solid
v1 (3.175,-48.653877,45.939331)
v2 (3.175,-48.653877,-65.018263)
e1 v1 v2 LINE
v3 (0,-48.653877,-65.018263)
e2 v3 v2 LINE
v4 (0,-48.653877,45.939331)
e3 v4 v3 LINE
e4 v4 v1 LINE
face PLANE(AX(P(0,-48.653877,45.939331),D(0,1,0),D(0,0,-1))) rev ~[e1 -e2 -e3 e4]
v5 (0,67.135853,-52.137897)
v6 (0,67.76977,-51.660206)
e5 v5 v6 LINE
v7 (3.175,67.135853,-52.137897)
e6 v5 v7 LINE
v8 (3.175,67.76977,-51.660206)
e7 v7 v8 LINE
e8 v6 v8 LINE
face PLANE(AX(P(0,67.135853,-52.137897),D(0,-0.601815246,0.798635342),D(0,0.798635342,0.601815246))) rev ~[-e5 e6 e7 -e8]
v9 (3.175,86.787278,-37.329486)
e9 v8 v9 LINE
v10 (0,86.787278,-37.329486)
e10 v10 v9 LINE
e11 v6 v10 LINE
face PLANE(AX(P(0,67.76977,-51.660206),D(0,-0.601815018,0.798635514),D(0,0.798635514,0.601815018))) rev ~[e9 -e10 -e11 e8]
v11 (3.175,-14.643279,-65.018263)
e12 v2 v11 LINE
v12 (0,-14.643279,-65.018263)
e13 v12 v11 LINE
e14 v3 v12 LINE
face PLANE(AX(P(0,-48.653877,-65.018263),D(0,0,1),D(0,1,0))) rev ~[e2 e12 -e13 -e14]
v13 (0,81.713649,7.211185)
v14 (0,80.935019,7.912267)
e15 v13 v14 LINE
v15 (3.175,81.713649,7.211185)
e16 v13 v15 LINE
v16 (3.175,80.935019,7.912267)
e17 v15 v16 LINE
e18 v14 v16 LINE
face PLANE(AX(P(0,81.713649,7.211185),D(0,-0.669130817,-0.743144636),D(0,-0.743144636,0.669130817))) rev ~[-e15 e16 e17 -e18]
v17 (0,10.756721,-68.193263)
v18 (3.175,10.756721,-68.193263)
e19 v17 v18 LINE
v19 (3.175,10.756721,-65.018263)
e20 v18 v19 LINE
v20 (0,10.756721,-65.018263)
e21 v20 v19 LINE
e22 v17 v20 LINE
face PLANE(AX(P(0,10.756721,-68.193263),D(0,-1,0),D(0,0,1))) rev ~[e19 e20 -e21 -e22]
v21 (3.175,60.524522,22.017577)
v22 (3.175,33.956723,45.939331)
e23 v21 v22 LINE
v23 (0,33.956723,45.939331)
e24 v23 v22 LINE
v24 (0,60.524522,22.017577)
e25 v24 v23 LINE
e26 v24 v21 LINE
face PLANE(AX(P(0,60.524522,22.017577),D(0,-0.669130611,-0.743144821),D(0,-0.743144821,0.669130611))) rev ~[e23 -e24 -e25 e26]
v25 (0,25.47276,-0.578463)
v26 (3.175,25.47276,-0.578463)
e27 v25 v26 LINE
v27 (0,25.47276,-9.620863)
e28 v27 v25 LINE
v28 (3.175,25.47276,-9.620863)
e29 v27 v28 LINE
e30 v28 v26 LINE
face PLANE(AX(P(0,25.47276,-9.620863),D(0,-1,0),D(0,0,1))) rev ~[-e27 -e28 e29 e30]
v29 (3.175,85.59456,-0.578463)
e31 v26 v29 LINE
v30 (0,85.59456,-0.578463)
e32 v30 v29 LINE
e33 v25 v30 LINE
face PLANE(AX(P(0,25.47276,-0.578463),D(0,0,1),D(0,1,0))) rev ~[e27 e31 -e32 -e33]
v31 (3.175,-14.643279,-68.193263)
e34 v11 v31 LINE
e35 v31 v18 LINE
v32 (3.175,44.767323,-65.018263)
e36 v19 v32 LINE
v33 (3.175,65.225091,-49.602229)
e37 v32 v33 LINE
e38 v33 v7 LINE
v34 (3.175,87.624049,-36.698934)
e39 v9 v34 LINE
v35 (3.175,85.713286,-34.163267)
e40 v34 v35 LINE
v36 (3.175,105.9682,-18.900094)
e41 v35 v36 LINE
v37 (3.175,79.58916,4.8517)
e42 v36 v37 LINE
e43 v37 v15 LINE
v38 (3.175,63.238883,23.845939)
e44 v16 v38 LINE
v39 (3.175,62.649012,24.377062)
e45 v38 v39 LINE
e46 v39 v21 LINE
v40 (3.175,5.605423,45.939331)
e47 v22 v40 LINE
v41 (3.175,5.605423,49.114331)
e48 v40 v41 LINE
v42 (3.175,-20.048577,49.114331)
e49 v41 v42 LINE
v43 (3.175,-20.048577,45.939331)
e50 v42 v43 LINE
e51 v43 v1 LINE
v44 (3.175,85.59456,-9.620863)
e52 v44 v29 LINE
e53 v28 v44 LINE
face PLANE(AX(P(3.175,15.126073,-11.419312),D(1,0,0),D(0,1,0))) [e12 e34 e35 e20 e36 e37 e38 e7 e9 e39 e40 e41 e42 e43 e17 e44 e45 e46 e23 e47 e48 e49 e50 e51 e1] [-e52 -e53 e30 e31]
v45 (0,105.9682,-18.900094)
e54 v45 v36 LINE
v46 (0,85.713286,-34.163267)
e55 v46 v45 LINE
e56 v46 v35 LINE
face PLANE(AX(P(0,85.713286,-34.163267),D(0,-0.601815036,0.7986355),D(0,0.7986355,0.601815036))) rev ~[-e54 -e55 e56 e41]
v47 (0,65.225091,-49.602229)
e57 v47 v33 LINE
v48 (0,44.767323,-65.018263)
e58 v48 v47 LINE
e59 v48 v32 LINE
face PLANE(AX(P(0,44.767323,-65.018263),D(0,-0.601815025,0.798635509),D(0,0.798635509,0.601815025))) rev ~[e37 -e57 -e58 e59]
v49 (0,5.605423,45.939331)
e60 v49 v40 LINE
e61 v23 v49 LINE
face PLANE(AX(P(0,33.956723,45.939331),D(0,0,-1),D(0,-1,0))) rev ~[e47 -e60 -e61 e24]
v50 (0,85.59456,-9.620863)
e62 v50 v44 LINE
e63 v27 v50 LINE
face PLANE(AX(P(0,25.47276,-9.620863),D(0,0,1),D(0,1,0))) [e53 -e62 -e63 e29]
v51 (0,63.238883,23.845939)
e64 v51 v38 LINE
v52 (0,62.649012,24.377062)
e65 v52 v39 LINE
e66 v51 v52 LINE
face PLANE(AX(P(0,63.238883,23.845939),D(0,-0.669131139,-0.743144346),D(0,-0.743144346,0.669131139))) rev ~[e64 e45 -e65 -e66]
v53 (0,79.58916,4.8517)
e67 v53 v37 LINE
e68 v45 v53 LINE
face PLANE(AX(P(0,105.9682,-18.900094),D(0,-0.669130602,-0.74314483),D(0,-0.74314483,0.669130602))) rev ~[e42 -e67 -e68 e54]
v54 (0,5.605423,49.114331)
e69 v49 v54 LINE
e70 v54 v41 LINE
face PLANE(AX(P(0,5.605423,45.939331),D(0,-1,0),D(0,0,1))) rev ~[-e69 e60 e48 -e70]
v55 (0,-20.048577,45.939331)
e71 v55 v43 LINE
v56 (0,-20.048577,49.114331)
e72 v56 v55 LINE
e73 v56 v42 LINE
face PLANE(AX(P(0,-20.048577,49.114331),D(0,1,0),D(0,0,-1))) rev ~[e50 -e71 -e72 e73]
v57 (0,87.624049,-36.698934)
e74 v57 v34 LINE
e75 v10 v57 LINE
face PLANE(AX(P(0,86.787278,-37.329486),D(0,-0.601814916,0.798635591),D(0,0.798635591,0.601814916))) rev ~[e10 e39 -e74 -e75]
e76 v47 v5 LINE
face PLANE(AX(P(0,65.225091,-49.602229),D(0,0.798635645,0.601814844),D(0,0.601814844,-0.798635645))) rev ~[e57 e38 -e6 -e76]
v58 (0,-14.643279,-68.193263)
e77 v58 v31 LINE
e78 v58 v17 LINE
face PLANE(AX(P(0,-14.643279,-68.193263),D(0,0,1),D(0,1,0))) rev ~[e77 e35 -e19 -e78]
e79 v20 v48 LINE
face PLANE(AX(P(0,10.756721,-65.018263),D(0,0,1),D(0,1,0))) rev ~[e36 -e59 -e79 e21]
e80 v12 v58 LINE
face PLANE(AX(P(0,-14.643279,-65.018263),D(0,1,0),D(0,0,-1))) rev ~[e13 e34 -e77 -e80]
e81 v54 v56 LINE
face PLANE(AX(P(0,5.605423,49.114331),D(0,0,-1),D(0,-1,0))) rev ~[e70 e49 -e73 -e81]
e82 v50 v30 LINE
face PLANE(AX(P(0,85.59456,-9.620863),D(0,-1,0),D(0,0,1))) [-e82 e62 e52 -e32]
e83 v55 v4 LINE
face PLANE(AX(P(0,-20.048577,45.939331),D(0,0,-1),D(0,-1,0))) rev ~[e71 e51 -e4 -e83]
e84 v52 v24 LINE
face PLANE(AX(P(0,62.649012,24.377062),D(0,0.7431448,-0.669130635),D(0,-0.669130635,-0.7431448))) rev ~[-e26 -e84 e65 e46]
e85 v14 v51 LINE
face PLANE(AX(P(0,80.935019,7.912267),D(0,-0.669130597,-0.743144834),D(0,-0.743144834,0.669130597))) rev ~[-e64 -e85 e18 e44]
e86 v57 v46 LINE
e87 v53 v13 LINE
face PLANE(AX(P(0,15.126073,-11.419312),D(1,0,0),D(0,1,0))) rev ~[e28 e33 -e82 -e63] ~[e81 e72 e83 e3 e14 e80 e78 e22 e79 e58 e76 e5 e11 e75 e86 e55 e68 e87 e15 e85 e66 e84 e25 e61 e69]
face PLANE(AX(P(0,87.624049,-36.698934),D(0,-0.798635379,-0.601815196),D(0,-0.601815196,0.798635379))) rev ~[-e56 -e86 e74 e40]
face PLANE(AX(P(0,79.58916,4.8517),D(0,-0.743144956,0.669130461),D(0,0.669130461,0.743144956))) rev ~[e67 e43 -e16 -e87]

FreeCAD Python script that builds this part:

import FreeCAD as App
import Part
import Sketcher
Q = App.Units.Quantity

doc = App.newDocument("Part")
body = doc.addObject("PartDesign::Body", "Body")

sketch1 = doc.addObject("Sketcher::SketchObject", "Sketch")
body.addObject(sketch1)
sketch1.AttachmentSupport = (doc.YZ_Plane, [""])
sketch1.MapMode = "FlatFace"
sketch1.addGeometry(Part.LineSegment(App.Vector(60.5, 22, 0), App.Vector(34, 45.9, 0)), False)
sketch1.addGeometry(Part.LineSegment(App.Vector(34, 45.9, 0), App.Vector(5.6, 45.9, 0)), False)
sketch1.addGeometry(Part.LineSegment(App.Vector(5.6, 45.9, 0), App.Vector(5.6, 49.1, 0)), False)
sketch1.addGeometry(Part.LineSegment(App.Vector(5.6, 49.1, 0), App.Vector(-20, 49.1, 0)), False)
sketch1.addGeometry(Part.LineSegment(App.Vector(-20, 49.1, 0), App.Vector(-20, 45.9, 0)), False)
sketch1.addGeometry(Part.LineSegment(App.Vector(-20, 45.9, 0), App.Vector(-48.7, 45.9, 0)), False)
sketch1.addGeometry(Part.LineSegment(App.Vector(-48.7, 45.9, 0), App.Vector(-48.7, -65, 0)), False)
sketch1.addGeometry(Part.LineSegment(App.Vector(-48.7, -65, 0), App.Vector(-14.6, -65, 0)), False)
sketch1.addGeometry(Part.LineSegment(App.Vector(-14.6, -65, 0), App.Vector(-14.6, -68.2, 0)), False)
sketch1.addGeometry(Part.LineSegment(App.Vector(-14.6, -68.2, 0), App.Vector(10.8, -68.2, 0)), False)
sketch1.addGeometry(Part.LineSegment(App.Vector(10.8, -68.2, 0), App.Vector(10.8, -65, 0)), False)
sketch1.addGeometry(Part.LineSegment(App.Vector(10.8, -65, 0), App.Vector(44.8, -65, 0)), False)
sketch1.addGeometry(Part.LineSegment(App.Vector(44.8, -65, 0), App.Vector(65.2, -49.6, 0)), False)
sketch1.addGeometry(Part.LineSegment(App.Vector(65.2, -49.6, 0), App.Vector(67.1, -52.1, 0)), False)
sketch1.addGeometry(Part.LineSegment(App.Vector(67.1, -52.1, 0), App.Vector(67.8, -51.7, 0)), False)
sketch1.addGeometry(Part.LineSegment(App.Vector(67.8, -51.7, 0), App.Vector(86.8, -37.3, 0)), False)
sketch1.addGeometry(Part.LineSegment(App.Vector(86.8, -37.3, 0), App.Vector(87.6, -36.7, 0)), False)
sketch1.addGeometry(Part.LineSegment(App.Vector(87.6, -36.7, 0), App.Vector(85.7, -34.2, 0)), False)
sketch1.addGeometry(Part.LineSegment(App.Vector(85.7, -34.2, 0), App.Vector(106, -18.9, 0)), False)
sketch1.addGeometry(Part.LineSegment(App.Vector(106, -18.9, 0), App.Vector(79.6, 4.9, 0)), False)
sketch1.addGeometry(Part.LineSegment(App.Vector(79.6, 4.9, 0), App.Vector(81.7, 7.2, 0)), False)
sketch1.addGeometry(Part.LineSegment(App.Vector(81.7, 7.2, 0), App.Vector(80.9, 7.9, 0)), False)
sketch1.addGeometry(Part.LineSegment(App.Vector(80.9, 7.9, 0), App.Vector(63.2, 23.8, 0)), False)
sketch1.addGeometry(Part.LineSegment(App.Vector(63.2, 23.8, 0), App.Vector(62.6, 24.4, 0)), False)
sketch1.addGeometry(Part.LineSegment(App.Vector(62.6, 24.4, 0), App.Vector(60.5, 22, 0)), False)
sketch1.addGeometry(Part.LineSegment(App.Vector(85.6, -9.6, 0), App.Vector(25.5, -9.6, 0)), False)
sketch1.addGeometry(Part.LineSegment(App.Vector(25.5, -9.6, 0), App.Vector(25.5, -0.6, 0)), False)
sketch1.addGeometry(Part.LineSegment(App.Vector(25.5, -0.6, 0), App.Vector(85.6, -0.6, 0)), False)
sketch1.addGeometry(Part.LineSegment(App.Vector(85.6, -0.6, 0), App.Vector(85.6, -9.6, 0)), False)
sketch1.addConstraint(Sketcher.Constraint("Coincident", 0, 2, 1, 1))
sketch1.addConstraint(Sketcher.Constraint("Coincident", 1, 2, 2, 1))
sketch1.addConstraint(Sketcher.Constraint("Coincident", 2, 2, 3, 1))
sketch1.addConstraint(Sketcher.Constraint("Coincident", 3, 2, 4, 1))
sketch1.addConstraint(Sketcher.Constraint("Coincident", 4, 2, 5, 1))
sketch1.addConstraint(Sketcher.Constraint("Coincident", 5, 2, 6, 1))
sketch1.addConstraint(Sketcher.Constraint("Coincident", 6, 2, 7, 1))
sketch1.addConstraint(Sketcher.Constraint("Coincident", 7, 2, 8, 1))
sketch1.addConstraint(Sketcher.Constraint("Coincident", 8, 2, 9, 1))
sketch1.addConstraint(Sketcher.Constraint("Coincident", 9, 2, 10, 1))
sketch1.addConstraint(Sketcher.Constraint("Coincident", 10, 2, 11, 1))
sketch1.addConstraint(Sketcher.Constraint("Coincident", 11, 2, 12, 1))
sketch1.addConstraint(Sketcher.Constraint("Coincident", 12, 2, 13, 1))
sketch1.addConstraint(Sketcher.Constraint("Coincident", 13, 2, 14, 1))
sketch1.addConstraint(Sketcher.Constraint("Coincident", 14, 2, 15, 1))
sketch1.addConstraint(Sketcher.Constraint("Coincident", 15, 2, 16, 1))
sketch1.addConstraint(Sketcher.Constraint("Coincident", 16, 2, 17, 1))
sketch1.addConstraint(Sketcher.Constraint("Coincident", 17, 2, 18, 1))
sketch1.addConstraint(Sketcher.Constraint("Coincident", 18, 2, 19, 1))
sketch1.addConstraint(Sketcher.Constraint("Coincident", 19, 2, 20, 1))
sketch1.addConstraint(Sketcher.Constraint("Coincident", 20, 2, 21, 1))
sketch1.addConstraint(Sketcher.Constraint("Coincident", 21, 2, 22, 1))
sketch1.addConstraint(Sketcher.Constraint("Coincident", 22, 2, 23, 1))
sketch1.addConstraint(Sketcher.Constraint("Coincident", 23, 2, 24, 1))
sketch1.addConstraint(Sketcher.Constraint("Coincident", 24, 2, 0, 1))
sketch1.addConstraint(Sketcher.Constraint("Coincident", 25, 2, 26, 1))
sketch1.addConstraint(Sketcher.Constraint("Coincident", 26, 2, 27, 1))
sketch1.addConstraint(Sketcher.Constraint("Coincident", 27, 2, 28, 1))
sketch1.addConstraint(Sketcher.Constraint("Coincident", 28, 2, 25, 1))
sketch1.addConstraint(Sketcher.Constraint("Horizontal", 1))
sketch1.addConstraint(Sketcher.Constraint("Vertical", 2))
sketch1.addConstraint(Sketcher.Constraint("Horizontal", 3))
sketch1.addConstraint(Sketcher.Constraint("Vertical", 4))
sketch1.addConstraint(Sketcher.Constraint("Horizontal", 5))
sketch1.addConstraint(Sketcher.Constraint("Vertical", 6))
sketch1.addConstraint(Sketcher.Constraint("Horizontal", 7))
sketch1.addConstraint(Sketcher.Constraint("Vertical", 8))
sketch1.addConstraint(Sketcher.Constraint("Horizontal", 9))
sketch1.addConstraint(Sketcher.Constraint("Vertical", 10))
sketch1.addConstraint(Sketcher.Constraint("Horizontal", 11))
sketch1.addConstraint(Sketcher.Constraint("Horizontal", 25))
sketch1.addConstraint(Sketcher.Constraint("Vertical", 26))
sketch1.addConstraint(Sketcher.Constraint("Horizontal", 27))
sketch1.addConstraint(Sketcher.Constraint("Vertical", 28))
sketch1.addConstraint(Sketcher.Constraint("Perpendicular", 12, 13))
sketch1.addConstraint(Sketcher.Constraint("Perpendicular", 13, 14))
sketch1.addConstraint(Sketcher.Constraint("Parallel", 14, 15))
sketch1.addConstraint(Sketcher.Constraint("Parallel", 15, 16))
sketch1.addConstraint(Sketcher.Constraint("Perpendicular", 16, 17))
sketch1.addConstraint(Sketcher.Constraint("Perpendicular", 17, 18))
sketch1.addConstraint(Sketcher.Constraint("Parallel", 0, 19))
sketch1.addConstraint(Sketcher.Constraint("Perpendicular", 19, 20))
sketch1.addConstraint(Sketcher.Constraint("Perpendicular", 20, 21))
sketch1.addConstraint(Sketcher.Constraint("Parallel", 21, 22))
sketch1.addConstraint(Sketcher.Constraint("Parallel", 22, 23))
sketch1.addConstraint(Sketcher.Constraint("Perpendicular", 23, 24))
sketch1.addConstraint(Sketcher.Constraint("Horizontal", 1, 2, 4, 2))
sketch1.addConstraint(Sketcher.Constraint("Horizontal", 7, 2, 10, 2))
sketch1.addConstraint(Sketcher.Constraint("Equal", 4, 8))
sketch1.addConstraint(Sketcher.Constraint("Equal", 13, 17))
sketch1.addConstraint(Sketcher.Constraint("Equal", 17, 20))
sketch1.addConstraint(Sketcher.Constraint("Equal", 16, 21))
sketch1.addConstraint(Sketcher.Constraint("Equal", 15, 22))
sketch1.addConstraint(Sketcher.Constraint("Equal", 14, 23))
sketch1.addConstraint(Sketcher.Constraint("Equal", 20, 24))
sketch1.addConstraint(Sketcher.Constraint("DistanceX", 9, 1, 9, 2, Q("1 in")))
sketch1.addConstraint(Sketcher.Constraint("Angle", 0, Q("138 deg")))
sketch1.addConstraint(Sketcher.Constraint("Angle", 12, Q("37 deg")))
sketch1.addConstraint(Sketcher.Constraint("DistanceX", 3, 2, 3, 1, Q("1.01 in")))
sketch1.addConstraint(Sketcher.Constraint("DistanceX", 7, 1, 7, 2, Q("1.3389999 in")))
sketch1.addConstraint(Sketcher.Constraint("DistanceX", 11, 1, 11, 2, Q("1.3390001 in")))
sketch1.addConstraint(Sketcher.Constraint("DistanceX", 25, 2, 25, 1, Q("2.367 in")))
sketch1.addConstraint(Sketcher.Constraint("DistanceY", 2, 1, 2, 2, Q("0.125 in")))
sketch1.addConstraint(Sketcher.Constraint("DistanceY", 26, 1, 26, 2, Q("0.356 in")))
sketch1.addConstraint(Sketcher.Constraint("Distance", 13, Q("0.125 in")))
sketch1.addConstraint(Sketcher.Constraint("Distance", 14, Q("0.03125 in")))
sketch1.addConstraint(Sketcher.Constraint("Distance", 15, Q("0.9375 in")))
sketch1.addConstraint(Sketcher.Constraint("Distance", 0, Q("1.4075 in")))
sketch1.addConstraint(Sketcher.Constraint("Distance", 12, Q("1.0085 in")))
sketch1.addConstraint(Sketcher.Constraint("Distance", 18, Q("0.9985 in")))
sketch1.addConstraint(Sketcher.Constraint("Distance", 19, Q("1.3975 in")))
sketch1.addConstraint(Sketcher.Constraint("DistanceX", 1, 2, 1, 1, Q("28.3513 mm")))
sketch1.addConstraint(Sketcher.Constraint("DistanceX", 5, 2, 5, 1, Q("28.6053 mm")))
sketch1.addConstraint(Sketcher.Constraint("DistanceX", -1, 1, 18, 2, Q("105.9682 mm")))
sketch1.addConstraint(Sketcher.Constraint("DistanceY", -1, 1, 19, 2, Q("4.8517 mm")))
sketch1.addConstraint(Sketcher.Constraint("DistanceX", 25, 2, 19, 2, Q("54.1164 mm")))
sketch1.addConstraint(Sketcher.Constraint("DistanceY", 25, 2, 24, 2, Q("31.63844 mm")))
pad1 = doc.addObject("PartDesign::Pad", "Pad")
body.addObject(pad1)
pad1.Profile = sketch1
pad1.Length = Q("0.125 in")

doc.recompute()
